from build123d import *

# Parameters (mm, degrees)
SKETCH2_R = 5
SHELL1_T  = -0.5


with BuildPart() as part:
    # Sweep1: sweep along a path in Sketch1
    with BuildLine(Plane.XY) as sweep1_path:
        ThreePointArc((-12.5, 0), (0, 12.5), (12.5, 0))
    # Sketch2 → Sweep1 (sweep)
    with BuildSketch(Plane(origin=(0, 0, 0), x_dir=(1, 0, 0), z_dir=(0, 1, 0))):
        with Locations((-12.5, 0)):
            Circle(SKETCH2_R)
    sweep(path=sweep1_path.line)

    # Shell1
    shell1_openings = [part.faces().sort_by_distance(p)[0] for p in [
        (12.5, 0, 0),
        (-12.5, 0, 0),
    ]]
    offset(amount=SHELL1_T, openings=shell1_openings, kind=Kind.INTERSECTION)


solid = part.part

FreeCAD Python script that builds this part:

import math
import FreeCAD as App
import Part
import Sketcher
from FreeCAD import Vector
Q = App.Units.Quantity


def faces_at(feature, points):
    """Names of the faces that lie closest to the given points."""
    faces = feature.Shape.Faces
    near = lambda p: min(range(len(faces)), key=lambda i: faces[i].distToShape(Part.Vertex(*p))[0])
    return sorted({f"Face{near(p) + 1}" for p in points})

doc = App.newDocument("Part")
params = doc.addObject("Spreadsheet::Sheet", "Params")
for row, (alias, value) in enumerate([
    ("sketch1_diameter", "10 mm"),
    ("sketch2_radius", "12.5 mm"),
    ("thickness_wall", "0.5 mm"),
], start=1):
    params.set(f"A{row}", alias)
    params.set(f"B{row}", "=" + value)
    params.setAlias(f"B{row}", alias)

body = doc.addObject("PartDesign::Body", "Body")

# Sketch on XZ plane
sketch1 = body.newObject("Sketcher::SketchObject", "Sketch")
sketch1.AttachmentSupport = (doc.getObject("XZ_Plane"), [""])
sketch1.MapMode = "FlatFace"
sketch1.addGeometry(Part.Circle(Vector(-12, 0, 0), Vector(0, 0, 1), 5), False)
sketch1.addConstraint([
    Sketcher.Constraint("PointOnObject", 0, 3, -1),
    Sketcher.Constraint("Diameter", 0, Q("10 mm")),
    Sketcher.Constraint("DistanceX", 0, 3, -1, 1, Q("12.5 mm")),
])
sketch1.setExpression("Constraints[1]", "Params.sketch1_diameter")

# Sketch on XY plane
sketch2 = body.newObject("Sketcher::SketchObject", "Sketch001")
sketch2.AttachmentSupport = (doc.getObject("XY_Plane"), [""])
sketch2.MapMode = "FlatFace"
sketch2.addGeometry(Part.ArcOfCircle(Part.Circle(Vector(0, 0, 0), Vector(0, 0, 1), 12), math.radians(0), math.radians(180)), False)
sketch2.addConstraint([
    Sketcher.Constraint("Coincident", 0, 3, -1, 1),
    Sketcher.Constraint("PointOnObject", 0, 1, -1),
    Sketcher.Constraint("PointOnObject", 0, 2, -1),
    Sketcher.Constraint("Radius", 0, Q("12.5 mm")),
])
sketch2.setExpression("Constraints[3]", "Params.sketch2_radius")
doc.recompute()

additivepipe = body.newObject("PartDesign::AdditivePipe", "AdditivePipe")
additivepipe.Profile = sketch1
additivepipe.Spine = (sketch2, ["Edge1"])
doc.recompute()

thickness = body.newObject("PartDesign::Thickness", "Thickness")
thickness.Base = (additivepipe, faces_at(additivepipe, [(12.5, 0, 0), (-12.5, 0, 0)]))
thickness.setExpression("Value", "Params.thickness_wall")
thickness.Reversed = True
thickness.Join = "Intersection"

doc.recompute()
